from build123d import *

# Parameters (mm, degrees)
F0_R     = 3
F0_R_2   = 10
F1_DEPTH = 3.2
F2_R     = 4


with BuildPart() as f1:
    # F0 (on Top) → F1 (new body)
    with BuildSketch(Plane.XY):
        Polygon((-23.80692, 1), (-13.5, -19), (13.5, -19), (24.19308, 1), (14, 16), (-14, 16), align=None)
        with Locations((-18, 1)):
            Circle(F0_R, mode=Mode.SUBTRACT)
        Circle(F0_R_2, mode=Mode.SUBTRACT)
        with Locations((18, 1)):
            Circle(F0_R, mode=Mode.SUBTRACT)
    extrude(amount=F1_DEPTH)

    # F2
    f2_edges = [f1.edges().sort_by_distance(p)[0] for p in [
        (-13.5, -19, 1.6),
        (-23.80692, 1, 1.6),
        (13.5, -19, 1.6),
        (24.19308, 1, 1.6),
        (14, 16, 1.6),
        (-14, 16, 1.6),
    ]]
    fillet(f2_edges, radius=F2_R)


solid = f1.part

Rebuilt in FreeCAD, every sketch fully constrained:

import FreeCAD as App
import Part
import Sketcher
Q = App.Units.Quantity


def edges_at(feature, points):
    """Names of the edges that pass closest to the given points."""
    edges = feature.Shape.Edges
    near = lambda p: min(range(len(edges)), key=lambda i: edges[i].distToShape(Part.Vertex(*p))[0])
    return sorted({f"Edge{near(p) + 1}" for p in points})

doc = App.newDocument("Part")
params = doc.addObject("Spreadsheet::Sheet", "Params")
for row, (alias, value) in enumerate([
    ("sketch1_diameter", "6 mm"),
    ("sketch1_diameter2", "20 mm"),
    ("sketch1_width", "27 mm"),
    ("sketch1_width2", "28 mm"),
    ("pad1_length", "3.2 mm"),
    ("fillet_radius", "4 mm"),
], start=1):
    params.set(f"A{row}", alias)
    params.set(f"B{row}", "=" + value)
    params.setAlias(f"B{row}", alias)

body = doc.addObject("PartDesign::Body", "Body")

sketch1 = body.newObject("Sketcher::SketchObject", "Sketch")
sketch1.AttachmentSupport = (doc.getObject("XY_Plane"), [""])
sketch1.MapMode = "FlatFace"
sketch1.addGeometry([
    Part.LineSegment(App.Vector(-23.8, 1, 0), App.Vector(-13.5, -19, 0)),
    Part.LineSegment(App.Vector(-13.5, -19, 0), App.Vector(13.5, -19, 0)),
    Part.LineSegment(App.Vector(13.5, -19, 0), App.Vector(24.2, 1, 0)),
    Part.LineSegment(App.Vector(24.2, 1, 0), App.Vector(14, 16, 0)),
    Part.LineSegment(App.Vector(14, 16, 0), App.Vector(-14, 16, 0)),
    Part.LineSegment(App.Vector(-14, 16, 0), App.Vector(-23.8, 1, 0)),
    Part.Circle(App.Vector(-18, 1, 0), App.Vector(0, 0, 1), 3),
    Part.Circle(App.Vector(0, 0, 0), App.Vector(0, 0, 1), 10),
    Part.Circle(App.Vector(18, 1, 0), App.Vector(0, 0, 1), 3),
], False)
sketch1.addConstraint([
    Sketcher.Constraint("Coincident", 0, 2, 1, 1),
    Sketcher.Constraint("Coincident", 1, 2, 2, 1),
    Sketcher.Constraint("Coincident", 2, 2, 3, 1),
    Sketcher.Constraint("Coincident", 3, 2, 4, 1),
    Sketcher.Constraint("Coincident", 4, 2, 5, 1),
    Sketcher.Constraint("Coincident", 5, 2, 0, 1),
    Sketcher.Constraint("Horizontal", 1),
    Sketcher.Constraint("Horizontal", 4),
    Sketcher.Constraint("Coincident", 7, 3, -1, 1),
    Sketcher.Constraint("Equal", 6, 8),
    Sketcher.Constraint("Symmetric", 6, 3, 8, 3, -2),
    Sketcher.Constraint("Horizontal", 8, 3, 2, 2),
    Sketcher.Constraint("Horizontal", 2, 2, 5, 2),
    Sketcher.Constraint("Diameter", 6, Q("6 mm")),
    Sketcher.Constraint("Diameter", 7, Q("20 mm")),
    Sketcher.Constraint("DistanceX", 1, 1, 1, 2, Q("27 mm")),
    Sketcher.Constraint("DistanceX", 4, 2, 4, 1, Q("28 mm")),
    Sketcher.Constraint("DistanceX", 6, 3, -1, 1, Q("18 mm")),
    Sketcher.Constraint("DistanceY", -1, 1, 6, 3, Q("1 mm")),
    Sketcher.Constraint("DistanceY", 0, 2, -1, 1, Q("19 mm")),
    Sketcher.Constraint("DistanceX", -1, 1, 3, 2, Q("14 mm")),
    Sketcher.Constraint("DistanceY", -1, 1, 3, 2, Q("16 mm")),
    Sketcher.Constraint("DistanceX", 0, 2, -1, 1, Q("13.5 mm")),
    Sketcher.Constraint("Distance", 2, Q("22.679108 mm")),
    Sketcher.Constraint("DistanceX", 5, 2, -1, 1, Q("23.80692 mm")),
])
sketch1.setExpression("Constraints[13]", "Params.sketch1_diameter")
sketch1.setExpression("Constraints[14]", "Params.sketch1_diameter2")
sketch1.setExpression("Constraints[15]", "Params.sketch1_width")
sketch1.setExpression("Constraints[16]", "Params.sketch1_width2")
pad1 = body.newObject("PartDesign::Pad", "Pad")
pad1.Profile = sketch1
pad1.setExpression("Length", "Params.pad1_length")
doc.recompute()

fillet = body.newObject("PartDesign::Fillet", "Fillet")
fillet.Base = (pad1, edges_at(pad1, [
    (-13.5, -19, 1.6),
    (-23.807, 1, 1.6),
    (13.5, -19, 1.6),
    (24.193, 1, 1.6),
    (14, 16, 1.6),
    (-14, 16, 1.6),
]))
fillet.setExpression("Radius", "Params.fillet_radius")

doc.recompute()
